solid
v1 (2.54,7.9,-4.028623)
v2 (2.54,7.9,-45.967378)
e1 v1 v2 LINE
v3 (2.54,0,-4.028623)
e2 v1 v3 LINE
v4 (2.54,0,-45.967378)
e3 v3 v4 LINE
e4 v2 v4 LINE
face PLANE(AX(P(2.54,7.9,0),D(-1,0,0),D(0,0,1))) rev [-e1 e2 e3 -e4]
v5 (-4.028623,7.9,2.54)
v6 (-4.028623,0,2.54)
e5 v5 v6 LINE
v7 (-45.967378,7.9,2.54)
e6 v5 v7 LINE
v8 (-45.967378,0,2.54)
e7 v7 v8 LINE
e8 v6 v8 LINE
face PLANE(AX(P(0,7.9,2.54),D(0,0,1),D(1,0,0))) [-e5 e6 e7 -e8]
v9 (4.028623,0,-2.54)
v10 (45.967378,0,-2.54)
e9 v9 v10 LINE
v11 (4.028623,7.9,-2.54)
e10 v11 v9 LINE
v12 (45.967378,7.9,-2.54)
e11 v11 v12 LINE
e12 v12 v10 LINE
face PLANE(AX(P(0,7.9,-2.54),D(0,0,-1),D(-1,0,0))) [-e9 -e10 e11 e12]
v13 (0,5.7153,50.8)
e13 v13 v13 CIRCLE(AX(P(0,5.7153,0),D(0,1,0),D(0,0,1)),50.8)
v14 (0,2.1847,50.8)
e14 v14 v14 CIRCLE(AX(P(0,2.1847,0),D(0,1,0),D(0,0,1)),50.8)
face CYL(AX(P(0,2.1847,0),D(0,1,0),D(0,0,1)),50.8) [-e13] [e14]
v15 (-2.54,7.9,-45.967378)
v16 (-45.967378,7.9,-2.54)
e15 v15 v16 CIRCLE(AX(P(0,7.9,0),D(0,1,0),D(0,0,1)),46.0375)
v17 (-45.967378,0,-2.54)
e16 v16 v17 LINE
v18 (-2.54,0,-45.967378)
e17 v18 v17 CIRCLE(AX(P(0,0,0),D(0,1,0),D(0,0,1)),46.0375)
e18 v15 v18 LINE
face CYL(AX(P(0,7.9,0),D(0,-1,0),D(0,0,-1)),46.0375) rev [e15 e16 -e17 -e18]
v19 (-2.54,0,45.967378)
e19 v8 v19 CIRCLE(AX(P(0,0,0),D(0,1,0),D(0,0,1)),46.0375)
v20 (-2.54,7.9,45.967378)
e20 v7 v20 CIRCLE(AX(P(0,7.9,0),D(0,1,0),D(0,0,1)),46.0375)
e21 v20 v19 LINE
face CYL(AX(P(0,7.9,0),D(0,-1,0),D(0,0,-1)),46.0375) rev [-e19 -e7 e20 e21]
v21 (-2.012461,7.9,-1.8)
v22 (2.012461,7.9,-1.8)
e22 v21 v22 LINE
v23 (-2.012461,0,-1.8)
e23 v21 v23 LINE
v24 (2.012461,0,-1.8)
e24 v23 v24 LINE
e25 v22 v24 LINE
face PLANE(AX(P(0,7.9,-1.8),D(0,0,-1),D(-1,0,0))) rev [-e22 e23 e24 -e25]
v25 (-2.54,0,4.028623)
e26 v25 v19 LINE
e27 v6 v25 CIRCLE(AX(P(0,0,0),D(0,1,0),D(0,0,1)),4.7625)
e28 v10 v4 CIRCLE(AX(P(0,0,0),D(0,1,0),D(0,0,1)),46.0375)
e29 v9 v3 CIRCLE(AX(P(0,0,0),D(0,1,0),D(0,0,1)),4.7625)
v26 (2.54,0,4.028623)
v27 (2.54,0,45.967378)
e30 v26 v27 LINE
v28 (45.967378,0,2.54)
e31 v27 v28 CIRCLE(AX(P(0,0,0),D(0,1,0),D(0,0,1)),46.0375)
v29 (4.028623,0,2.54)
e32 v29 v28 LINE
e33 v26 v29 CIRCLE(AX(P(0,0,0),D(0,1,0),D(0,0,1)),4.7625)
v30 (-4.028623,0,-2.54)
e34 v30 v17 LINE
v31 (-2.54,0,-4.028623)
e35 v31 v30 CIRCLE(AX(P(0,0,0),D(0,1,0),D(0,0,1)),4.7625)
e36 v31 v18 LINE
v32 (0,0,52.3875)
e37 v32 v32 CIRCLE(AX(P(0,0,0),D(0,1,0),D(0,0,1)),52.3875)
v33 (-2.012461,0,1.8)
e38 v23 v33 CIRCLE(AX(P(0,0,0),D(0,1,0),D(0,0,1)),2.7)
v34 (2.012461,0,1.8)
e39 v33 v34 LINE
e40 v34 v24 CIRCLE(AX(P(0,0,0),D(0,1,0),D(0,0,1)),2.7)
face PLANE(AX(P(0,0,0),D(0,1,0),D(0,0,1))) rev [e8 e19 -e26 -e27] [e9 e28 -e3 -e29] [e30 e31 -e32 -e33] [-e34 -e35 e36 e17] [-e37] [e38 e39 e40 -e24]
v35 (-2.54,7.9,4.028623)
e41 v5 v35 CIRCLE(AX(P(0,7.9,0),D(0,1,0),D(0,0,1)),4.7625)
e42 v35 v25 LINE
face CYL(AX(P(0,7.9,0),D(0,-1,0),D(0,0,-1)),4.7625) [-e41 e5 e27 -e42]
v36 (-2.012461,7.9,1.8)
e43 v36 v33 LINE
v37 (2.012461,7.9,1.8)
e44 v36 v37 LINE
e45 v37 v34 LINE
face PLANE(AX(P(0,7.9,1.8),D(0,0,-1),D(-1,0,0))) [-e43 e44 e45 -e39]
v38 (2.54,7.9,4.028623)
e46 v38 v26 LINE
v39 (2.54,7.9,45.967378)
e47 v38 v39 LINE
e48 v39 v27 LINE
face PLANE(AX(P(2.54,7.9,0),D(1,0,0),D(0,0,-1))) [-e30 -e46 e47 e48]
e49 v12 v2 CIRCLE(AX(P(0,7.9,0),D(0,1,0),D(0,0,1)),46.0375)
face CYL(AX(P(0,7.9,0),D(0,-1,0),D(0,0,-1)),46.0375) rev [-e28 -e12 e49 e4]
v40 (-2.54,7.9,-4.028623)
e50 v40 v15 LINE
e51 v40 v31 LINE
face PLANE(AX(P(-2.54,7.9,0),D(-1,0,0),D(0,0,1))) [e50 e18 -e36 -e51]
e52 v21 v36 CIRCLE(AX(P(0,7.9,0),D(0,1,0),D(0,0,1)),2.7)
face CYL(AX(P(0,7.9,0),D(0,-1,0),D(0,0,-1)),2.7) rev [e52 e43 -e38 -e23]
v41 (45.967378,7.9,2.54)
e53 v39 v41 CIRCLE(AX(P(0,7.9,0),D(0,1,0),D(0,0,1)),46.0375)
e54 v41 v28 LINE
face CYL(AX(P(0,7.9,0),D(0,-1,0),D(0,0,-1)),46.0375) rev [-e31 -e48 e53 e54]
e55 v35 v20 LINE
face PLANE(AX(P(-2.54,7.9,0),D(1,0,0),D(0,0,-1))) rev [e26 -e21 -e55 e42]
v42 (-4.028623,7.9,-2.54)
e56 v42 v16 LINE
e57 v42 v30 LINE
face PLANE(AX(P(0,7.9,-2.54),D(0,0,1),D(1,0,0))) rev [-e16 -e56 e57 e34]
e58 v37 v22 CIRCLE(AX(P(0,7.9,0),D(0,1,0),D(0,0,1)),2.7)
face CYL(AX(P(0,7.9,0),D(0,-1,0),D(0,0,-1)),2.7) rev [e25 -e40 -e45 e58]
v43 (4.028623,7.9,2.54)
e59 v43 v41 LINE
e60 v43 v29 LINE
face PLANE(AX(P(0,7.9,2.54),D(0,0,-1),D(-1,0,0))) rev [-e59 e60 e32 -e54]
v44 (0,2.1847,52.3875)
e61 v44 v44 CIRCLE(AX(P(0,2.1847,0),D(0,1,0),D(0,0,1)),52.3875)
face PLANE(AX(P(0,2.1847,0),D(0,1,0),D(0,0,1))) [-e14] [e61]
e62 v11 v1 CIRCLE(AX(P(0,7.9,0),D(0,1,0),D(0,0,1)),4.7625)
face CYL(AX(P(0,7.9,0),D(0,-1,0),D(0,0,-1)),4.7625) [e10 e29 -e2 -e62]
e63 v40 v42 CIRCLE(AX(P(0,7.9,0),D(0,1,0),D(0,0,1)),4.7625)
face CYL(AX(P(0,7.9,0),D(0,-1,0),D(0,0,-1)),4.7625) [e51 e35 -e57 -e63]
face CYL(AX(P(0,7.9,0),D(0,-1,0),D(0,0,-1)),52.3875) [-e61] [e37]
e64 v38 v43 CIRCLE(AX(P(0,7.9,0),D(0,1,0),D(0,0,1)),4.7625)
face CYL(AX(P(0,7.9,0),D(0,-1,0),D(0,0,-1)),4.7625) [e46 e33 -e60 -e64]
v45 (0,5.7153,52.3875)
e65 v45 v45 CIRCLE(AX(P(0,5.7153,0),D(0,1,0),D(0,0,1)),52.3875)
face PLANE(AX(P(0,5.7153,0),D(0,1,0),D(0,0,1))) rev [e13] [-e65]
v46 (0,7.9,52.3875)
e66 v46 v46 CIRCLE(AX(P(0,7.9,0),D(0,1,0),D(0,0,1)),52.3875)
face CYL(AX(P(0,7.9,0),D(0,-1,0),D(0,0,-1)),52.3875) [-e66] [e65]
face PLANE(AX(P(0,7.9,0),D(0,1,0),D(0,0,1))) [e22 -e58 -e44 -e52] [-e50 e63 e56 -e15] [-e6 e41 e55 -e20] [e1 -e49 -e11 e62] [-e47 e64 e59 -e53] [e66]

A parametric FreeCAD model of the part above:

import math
import FreeCAD as App
import Part
import Sketcher
Q = App.Units.Quantity

doc = App.newDocument("Part")
body = doc.addObject("PartDesign::Body", "Body")

sketch1 = body.newObject("Sketcher::SketchObject", "Sketch")
sketch1.AttachmentSupport = (doc.getObject("XZ_Plane"), [""])
sketch1.MapMode = "FlatFace"
sketch1.addGeometry(Part.Circle(App.Vector(0, 0, 0), App.Vector(0, 0, 1), 52.4), False)
sketch1.addGeometry(Part.LineSegment(App.Vector(-2.5, -46, 0), App.Vector(-2.5, -4, 0)), False)
sketch1.addGeometry(Part.ArcOfCircle(Part.Circle(App.Vector(0, 0, 0), App.Vector(0, 0, 1), 4.8), math.radians(-148), math.radians(-122)), False)
sketch1.addGeometry(Part.LineSegment(App.Vector(-4, -2.5, 0), App.Vector(-46, -2.5, 0)), False)
sketch1.addGeometry(Part.ArcOfCircle(Part.Circle(App.Vector(0, 0, 0), App.Vector(0, 0, 1), 46), math.radians(-177), math.radians(-93)), False)
sketch1.addGeometry(Part.ArcOfCircle(Part.Circle(App.Vector(0, 0, 0), App.Vector(0, 0, 1), 46), math.radians(93), math.radians(177)), False)
sketch1.addGeometry(Part.LineSegment(App.Vector(-46, 2.5, 0), App.Vector(-4, 2.5, 0)), False)
sketch1.addGeometry(Part.ArcOfCircle(Part.Circle(App.Vector(0, 0, 0), App.Vector(0, 0, 1), 4.8), math.radians(122), math.radians(148)), False)
sketch1.addGeometry(Part.LineSegment(App.Vector(-2.5, 4, 0), App.Vector(-2.5, 46, 0)), False)
sketch1.addGeometry(Part.LineSegment(App.Vector(46, -2.5, 0), App.Vector(4, -2.5, 0)), False)
sketch1.addGeometry(Part.ArcOfCircle(Part.Circle(App.Vector(0, 0, 0), App.Vector(0, 0, 1), 4.8), math.radians(-58), math.radians(-32)), False)
sketch1.addGeometry(Part.LineSegment(App.Vector(2.5, -4, 0), App.Vector(2.5, -46, 0)), False)
sketch1.addGeometry(Part.ArcOfCircle(Part.Circle(App.Vector(0, 0, 0), App.Vector(0, 0, 1), 46), math.radians(-87), math.radians(-3)), False)
sketch1.addGeometry(Part.ArcOfCircle(Part.Circle(App.Vector(0, 0, 0), App.Vector(0, 0, 1), 2.7), math.radians(-42), math.radians(42)), False)
sketch1.addGeometry(Part.LineSegment(App.Vector(2, 1.8, 0), App.Vector(-2, 1.8, 0)), False)
sketch1.addGeometry(Part.ArcOfCircle(Part.Circle(App.Vector(0, 0, 0), App.Vector(0, 0, 1), 2.7), math.radians(138), math.radians(222)), False)
sketch1.addGeometry(Part.LineSegment(App.Vector(-2, -1.8, 0), App.Vector(2, -1.8, 0)), False)
sketch1.addGeometry(Part.LineSegment(App.Vector(2.5, 46, 0), App.Vector(2.5, 4, 0)), False)
sketch1.addGeometry(Part.ArcOfCircle(Part.Circle(App.Vector(0, 0, 0), App.Vector(0, 0, 1), 4.8), math.radians(32), math.radians(58)), False)
sketch1.addGeometry(Part.LineSegment(App.Vector(4, 2.5, 0), App.Vector(46, 2.5, 0)), False)
sketch1.addGeometry(Part.ArcOfCircle(Part.Circle(App.Vector(0, 0, 0), App.Vector(0, 0, 1), 46), math.radians(3), math.radians(87)), False)
sketch1.addConstraint(Sketcher.Constraint("Coincident", 1, 2, 2, 2))
sketch1.addConstraint(Sketcher.Constraint("Coincident", 2, 1, 3, 1))
sketch1.addConstraint(Sketcher.Constraint("Coincident", 3, 2, 4, 1))
sketch1.addConstraint(Sketcher.Constraint("Coincident", 4, 2, 1, 1))
sketch1.addConstraint(Sketcher.Constraint("Coincident", 5, 2, 6, 1))
sketch1.addConstraint(Sketcher.Constraint("Coincident", 6, 2, 7, 2))
sketch1.addConstraint(Sketcher.Constraint("Coincident", 7, 1, 8, 1))
sketch1.addConstraint(Sketcher.Constraint("Coincident", 8, 2, 5, 1))
sketch1.addConstraint(Sketcher.Constraint("Coincident", 9, 2, 10, 2))
sketch1.addConstraint(Sketcher.Constraint("Coincident", 10, 1, 11, 1))
sketch1.addConstraint(Sketcher.Constraint("Coincident", 11, 2, 12, 1))
sketch1.addConstraint(Sketcher.Constraint("Coincident", 12, 2, 9, 1))
sketch1.addConstraint(Sketcher.Constraint("Coincident", 13, 2, 14, 1))
sketch1.addConstraint(Sketcher.Constraint("Coincident", 14, 2, 15, 1))
sketch1.addConstraint(Sketcher.Constraint("Coincident", 15, 2, 16, 1))
sketch1.addConstraint(Sketcher.Constraint("Coincident", 16, 2, 13, 1))
sketch1.addConstraint(Sketcher.Constraint("Coincident", 17, 2, 18, 2))
sketch1.addConstraint(Sketcher.Constraint("Coincident", 18, 1, 19, 1))
sketch1.addConstraint(Sketcher.Constraint("Coincident", 19, 2, 20, 1))
sketch1.addConstraint(Sketcher.Constraint("Coincident", 20, 2, 17, 1))
sketch1.addConstraint(Sketcher.Constraint("Vertical", 1))
sketch1.addConstraint(Sketcher.Constraint("Horizontal", 3))
sketch1.addConstraint(Sketcher.Constraint("Horizontal", 6))
sketch1.addConstraint(Sketcher.Constraint("Vertical", 8))
sketch1.addConstraint(Sketcher.Constraint("Horizontal", 9))
sketch1.addConstraint(Sketcher.Constraint("Vertical", 11))
sketch1.addConstraint(Sketcher.Constraint("Horizontal", 14))
sketch1.addConstraint(Sketcher.Constraint("Horizontal", 16))
sketch1.addConstraint(Sketcher.Constraint("Vertical", 17))
sketch1.addConstraint(Sketcher.Constraint("Horizontal", 19))
sketch1.addConstraint(Sketcher.Constraint("Coincident", 0, 3, -1, 1))
sketch1.addConstraint(Sketcher.Constraint("Coincident", 2, 3, -1, 1))
sketch1.addConstraint(Sketcher.Constraint("Coincident", 4, 3, -1, 1))
sketch1.addConstraint(Sketcher.Constraint("Coincident", 5, 3, -1, 1))
sketch1.addConstraint(Sketcher.Constraint("Coincident", 7, 3, -1, 1))
sketch1.addConstraint(Sketcher.Constraint("Coincident", 10, 3, -1, 1))
sketch1.addConstraint(Sketcher.Constraint("Coincident", 12, 3, -1, 1))
sketch1.addConstraint(Sketcher.Constraint("Coincident", 13, 3, -1, 1))
sketch1.addConstraint(Sketcher.Constraint("Coincident", 15, 3, -1, 1))
sketch1.addConstraint(Sketcher.Constraint("Coincident", 18, 3, -1, 1))
sketch1.addConstraint(Sketcher.Constraint("Coincident", 20, 3, -1, 1))
sketch1.addConstraint(Sketcher.Constraint("Equal", 4, 5))
sketch1.addConstraint(Sketcher.Constraint("Equal", 2, 7))
sketch1.addConstraint(Sketcher.Constraint("Equal", 7, 10))
sketch1.addConstraint(Sketcher.Constraint("Equal", 5, 12))
sketch1.addConstraint(Sketcher.Constraint("Equal", 13, 15))
sketch1.addConstraint(Sketcher.Constraint("Equal", 10, 18))
sketch1.addConstraint(Sketcher.Constraint("Equal", 12, 20))
sketch1.addConstraint(Sketcher.Constraint("Horizontal", 3, 2, 9, 2))
sketch1.addConstraint(Sketcher.Constraint("Horizontal", 1, 2, 10, 1))
sketch1.addConstraint(Sketcher.Constraint("Horizontal", 7, 1, 17, 2))
sketch1.addConstraint(Sketcher.Constraint("Horizontal", 6, 2, 18, 1))
sketch1.addConstraint(Sketcher.Constraint("Vertical", 3, 2, 5, 2))
sketch1.addConstraint(Sketcher.Constraint("Vertical", 4, 2, 7, 1))
sketch1.addConstraint(Sketcher.Constraint("Vertical", 14, 2, 15, 2))
sketch1.addConstraint(Sketcher.Constraint("Equal", 19, 1))
sketch1.addConstraint(Sketcher.Constraint("Diameter", 0, Q("4.125 in")))
sketch1.addConstraint(Sketcher.Constraint("Radius", 2, Q("0.1875 in")))
sketch1.addConstraint(Sketcher.Constraint("Radius", 4, Q("1.8125 in")))
sketch1.addConstraint(Sketcher.Constraint("DistanceX", 1, 2, -1, 1, Q("0.1 in")))
sketch1.addConstraint(Sketcher.Constraint("Radius", 13, Q("2.7 mm")))
sketch1.addConstraint(Sketcher.Constraint("DistanceY", -1, 1, 13, 2, Q("1.8 mm")))
pad1 = body.newObject("PartDesign::Pad", "Pad")
pad1.Profile = sketch1
pad1.Length = 7.9
pad1.Reversed = True

sketch2 = body.newObject("Sketcher::SketchObject", "Sketch001")
sketch2.AttachmentSupport = (doc.getObject("XZ_Plane"), [""])
sketch2.MapMode = "FlatFace"
sketch2.AttachmentOffset = App.Placement(App.Vector(0, 0, -3.95), App.Rotation())
sketch2.addGeometry(Part.Circle(App.Vector(0, 0, 0), App.Vector(0, 0, 1), 52), False)
sketch2.addGeometry(Part.Circle(App.Vector(0, 0, 0), App.Vector(0, 0, 1), 51), False)
sketch2.addConstraint(Sketcher.Constraint("Coincident", 0, 3, -1, 1))
sketch2.addConstraint(Sketcher.Constraint("Coincident", 1, 3, -1, 1))
sketch2.addConstraint(Sketcher.Constraint("Diameter", 1, Q("4 in")))
sketch2.addConstraint(Sketcher.Constraint("Diameter", 0, Q("4.125 in")))
pocket1 = body.newObject("PartDesign::Pocket", "Pocket")
pocket1.Profile = sketch2
pocket1.Length = Q("0.139 in")
pocket1.Midplane = True

doc.recompute()
